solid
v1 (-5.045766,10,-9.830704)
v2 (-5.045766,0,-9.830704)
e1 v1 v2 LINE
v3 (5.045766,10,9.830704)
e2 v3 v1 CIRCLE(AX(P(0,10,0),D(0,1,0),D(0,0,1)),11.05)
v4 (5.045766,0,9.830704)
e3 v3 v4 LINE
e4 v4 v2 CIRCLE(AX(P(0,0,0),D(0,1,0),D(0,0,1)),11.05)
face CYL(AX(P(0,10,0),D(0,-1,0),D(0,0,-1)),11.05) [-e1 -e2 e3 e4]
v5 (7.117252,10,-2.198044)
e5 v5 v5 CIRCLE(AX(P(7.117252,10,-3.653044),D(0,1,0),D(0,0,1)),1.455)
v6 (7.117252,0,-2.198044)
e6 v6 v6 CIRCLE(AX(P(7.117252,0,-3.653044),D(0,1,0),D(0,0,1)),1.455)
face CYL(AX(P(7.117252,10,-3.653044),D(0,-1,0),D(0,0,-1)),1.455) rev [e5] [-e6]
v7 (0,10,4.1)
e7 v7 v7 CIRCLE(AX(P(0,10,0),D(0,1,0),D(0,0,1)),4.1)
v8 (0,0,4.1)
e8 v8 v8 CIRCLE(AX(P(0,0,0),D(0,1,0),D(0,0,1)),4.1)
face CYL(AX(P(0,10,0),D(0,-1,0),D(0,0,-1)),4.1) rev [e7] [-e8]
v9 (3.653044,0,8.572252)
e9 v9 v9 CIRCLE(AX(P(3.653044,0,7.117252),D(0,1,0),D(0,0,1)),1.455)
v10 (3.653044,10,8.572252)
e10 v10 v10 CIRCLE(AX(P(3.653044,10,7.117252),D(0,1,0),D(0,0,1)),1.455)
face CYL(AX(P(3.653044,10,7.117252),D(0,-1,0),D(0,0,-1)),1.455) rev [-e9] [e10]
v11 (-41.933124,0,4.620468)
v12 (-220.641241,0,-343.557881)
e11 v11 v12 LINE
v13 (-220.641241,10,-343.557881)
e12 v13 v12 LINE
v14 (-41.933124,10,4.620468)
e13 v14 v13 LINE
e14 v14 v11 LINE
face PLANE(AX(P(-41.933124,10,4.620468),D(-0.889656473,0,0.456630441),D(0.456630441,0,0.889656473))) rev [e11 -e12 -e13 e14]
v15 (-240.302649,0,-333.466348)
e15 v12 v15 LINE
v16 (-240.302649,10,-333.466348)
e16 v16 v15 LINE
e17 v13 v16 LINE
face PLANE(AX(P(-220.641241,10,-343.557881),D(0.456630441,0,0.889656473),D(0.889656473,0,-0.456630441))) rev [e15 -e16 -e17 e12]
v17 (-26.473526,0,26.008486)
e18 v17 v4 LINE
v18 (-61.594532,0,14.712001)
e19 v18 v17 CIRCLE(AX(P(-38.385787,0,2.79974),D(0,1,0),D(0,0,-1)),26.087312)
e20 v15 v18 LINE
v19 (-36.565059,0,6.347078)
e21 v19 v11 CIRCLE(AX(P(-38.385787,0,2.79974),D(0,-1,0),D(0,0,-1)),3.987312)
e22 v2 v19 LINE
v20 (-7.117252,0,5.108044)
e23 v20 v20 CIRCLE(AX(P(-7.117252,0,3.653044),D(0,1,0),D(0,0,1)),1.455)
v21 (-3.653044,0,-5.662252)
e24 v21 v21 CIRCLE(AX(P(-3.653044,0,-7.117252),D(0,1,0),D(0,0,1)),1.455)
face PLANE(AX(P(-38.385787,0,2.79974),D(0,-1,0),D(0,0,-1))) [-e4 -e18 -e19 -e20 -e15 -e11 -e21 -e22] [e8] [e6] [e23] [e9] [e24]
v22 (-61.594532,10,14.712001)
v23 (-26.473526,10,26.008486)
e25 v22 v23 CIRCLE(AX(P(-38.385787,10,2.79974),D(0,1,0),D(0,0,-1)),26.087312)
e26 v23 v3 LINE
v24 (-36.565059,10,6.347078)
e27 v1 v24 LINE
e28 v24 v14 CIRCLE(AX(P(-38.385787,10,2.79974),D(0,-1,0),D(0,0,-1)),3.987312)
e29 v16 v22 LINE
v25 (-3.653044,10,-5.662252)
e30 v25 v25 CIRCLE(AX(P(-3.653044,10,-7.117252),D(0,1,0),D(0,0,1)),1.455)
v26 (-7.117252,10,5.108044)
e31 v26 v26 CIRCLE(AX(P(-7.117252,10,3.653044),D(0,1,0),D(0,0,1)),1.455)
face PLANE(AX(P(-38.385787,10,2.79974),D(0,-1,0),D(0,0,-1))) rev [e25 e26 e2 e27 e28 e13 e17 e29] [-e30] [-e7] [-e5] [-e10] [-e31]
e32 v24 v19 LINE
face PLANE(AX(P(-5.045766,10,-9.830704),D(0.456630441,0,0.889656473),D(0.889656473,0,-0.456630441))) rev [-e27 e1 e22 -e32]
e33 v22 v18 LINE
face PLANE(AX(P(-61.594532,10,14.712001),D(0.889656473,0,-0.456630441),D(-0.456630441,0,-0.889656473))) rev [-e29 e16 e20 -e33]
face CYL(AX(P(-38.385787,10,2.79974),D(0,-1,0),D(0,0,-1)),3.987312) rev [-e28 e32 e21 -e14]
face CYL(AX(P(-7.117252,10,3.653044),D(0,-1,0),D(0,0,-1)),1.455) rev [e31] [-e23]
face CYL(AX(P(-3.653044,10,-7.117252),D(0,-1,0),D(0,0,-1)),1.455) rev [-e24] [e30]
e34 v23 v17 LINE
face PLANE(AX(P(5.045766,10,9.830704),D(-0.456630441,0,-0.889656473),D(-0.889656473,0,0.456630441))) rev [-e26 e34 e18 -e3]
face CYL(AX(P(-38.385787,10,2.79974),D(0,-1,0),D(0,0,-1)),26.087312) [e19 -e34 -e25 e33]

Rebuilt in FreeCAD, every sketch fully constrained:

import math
import FreeCAD as App
import Part
import Sketcher

doc = App.newDocument("Part")
params = doc.addObject("Spreadsheet::Sheet", "Params")
for row, (alias, value) in enumerate([
    ("sketch1_diameter", "8.2 mm"),
    ("sketch1_diameter2", "2.91 mm"),
    ("sketch1_radius", "11.05 mm"),
    ("pad1_length", "10 mm"),
], start=1):
    params.set(f"A{row}", alias)
    params.set(f"B{row}", "=" + value)
    params.setAlias(f"B{row}", alias)

body = doc.addObject("PartDesign::Body", "Body")

# Sketch on XZ plane
sketch1 = body.newObject("Sketcher::SketchObject", "Sketch")
sketch1.AttachmentSupport = (doc.getObject("XZ_Plane"), [""])
sketch1.MapMode = "FlatFace"
sketch1.addGeometry(Part.LineSegment(App.Vector(-5, -9.8, 0), App.Vector(-36.6, 6.3, 0)), False)
sketch1.addGeometry(Part.ArcOfCircle(Part.Circle(App.Vector(-38.4, 2.8, 0), App.Vector(0, 0, 1), 4), math.radians(63), math.radians(153)), False)
sketch1.addGeometry(Part.LineSegment(App.Vector(-41.9, 4.6, 0), App.Vector(-220.6, -343.6, 0)), False)
sketch1.addGeometry(Part.LineSegment(App.Vector(-220.6, -343.6, 0), App.Vector(-240.3, -333.5, 0)), False)
sketch1.addGeometry(Part.LineSegment(App.Vector(-240.3, -333.5, 0), App.Vector(-61.6, 14.7, 0)), False)
sketch1.addGeometry(Part.ArcOfCircle(Part.Circle(App.Vector(-38.4, 2.8, 0), App.Vector(0, 0, 1), 26.1), math.radians(63), math.radians(153)), False)
sketch1.addGeometry(Part.LineSegment(App.Vector(-26.5, 26, 0), App.Vector(5, 9.8, 0)), False)
sketch1.addGeometry(Part.ArcOfCircle(Part.Circle(App.Vector(0, 0, 0), App.Vector(0, 0, 1), 11.1), math.radians(-117), math.radians(63)), False)
sketch1.addGeometry(Part.Circle(App.Vector(7.1, -3.7, 0), App.Vector(0, 0, 1), 1.5), False)
sketch1.addGeometry(Part.Circle(App.Vector(-3.7, -7.1, 0), App.Vector(0, 0, 1), 1.5), False)
sketch1.addGeometry(Part.Circle(App.Vector(0, 0, 0), App.Vector(0, 0, 1), 4.1), False)
sketch1.addGeometry(Part.Circle(App.Vector(3.7, 7.1, 0), App.Vector(0, 0, 1), 1.5), False)
sketch1.addGeometry(Part.Circle(App.Vector(-7.1, 3.7, 0), App.Vector(0, 0, 1), 1.5), False)
sketch1.addConstraint(Sketcher.Constraint("Tangent", 0, 2, 1, 1))
sketch1.addConstraint(Sketcher.Constraint("Tangent", 1, 2, 2, 1))
sketch1.addConstraint(Sketcher.Constraint("Coincident", 2, 2, 3, 1))
sketch1.addConstraint(Sketcher.Constraint("Coincident", 3, 2, 4, 1))
sketch1.addConstraint(Sketcher.Constraint("Tangent", 4, 2, 5, 2))
sketch1.addConstraint(Sketcher.Constraint("Tangent", 5, 1, 6, 1))
sketch1.addConstraint(Sketcher.Constraint("Tangent", 6, 2, 7, 2))
sketch1.addConstraint(Sketcher.Constraint("Tangent", 7, 1, 0, 1))
sketch1.addConstraint(Sketcher.Constraint("Coincident", 7, 3, -1, 1))
sketch1.addConstraint(Sketcher.Constraint("Coincident", 10, 3, -1, 1))
sketch1.addConstraint(Sketcher.Constraint("Coincident", 5, 3, 1, 3))
sketch1.addConstraint(Sketcher.Constraint("Equal", 8, 9))
sketch1.addConstraint(Sketcher.Constraint("Equal", 9, 11))
sketch1.addConstraint(Sketcher.Constraint("Equal", 11, 12))
sketch1.addConstraint(Sketcher.Constraint("Symmetric", 9, 3, 11, 3, -1, 1))
sketch1.addConstraint(Sketcher.Constraint("Symmetric", 8, 3, 12, 3, -1, 1))
sketch1.addConstraint(Sketcher.Constraint("Perpendicular", 0, 2))
sketch1.addConstraint(Sketcher.Constraint("Perpendicular", 2, 3))
sketch1.addConstraint(Sketcher.Constraint("Perpendicular", 3, 4))
sketch1.addConstraint(Sketcher.Constraint("Perpendicular", 4, 6))
sketch1.addConstraint(Sketcher.Constraint("Diameter", 10, 8.2))
sketch1.addConstraint(Sketcher.Constraint("Diameter", 8, 2.91))
sketch1.addConstraint(Sketcher.Constraint("Radius", 7, 11.05))
sketch1.addConstraint(Sketcher.Constraint("Radius", 1, 3.987312))
sketch1.addConstraint(Sketcher.Constraint("DistanceY", -1, 1, 4, 2, 14.712001))
sketch1.addConstraint(Sketcher.Constraint("Distance", 0, 35.42861))
sketch1.addConstraint(Sketcher.Constraint("Distance", 2, 391.362688))
sketch1.addConstraint(Sketcher.Constraint("DistanceX", -1, 1, 8, 3, 7.117252))
sketch1.addConstraint(Sketcher.Constraint("DistanceY", 9, 3, -1, 1, 7.117252))
sketch1.addConstraint(Sketcher.Constraint("DistanceY", 9, 3, 8, 3, 3.464208))
sketch1.addConstraint(Sketcher.Constraint("DistanceX", 11, 3, 8, 3, 3.464208))
sketch1.setExpression("Constraints[20]", "Params.sketch1_diameter")
sketch1.setExpression("Constraints[21]", "Params.sketch1_diameter2")
sketch1.setExpression("Constraints[22]", "Params.sketch1_radius")
pad1 = body.newObject("PartDesign::Pad", "Pad")
pad1.Profile = sketch1
pad1.setExpression("Length", "Params.pad1_length")
pad1.Reversed = True

doc.recompute()
